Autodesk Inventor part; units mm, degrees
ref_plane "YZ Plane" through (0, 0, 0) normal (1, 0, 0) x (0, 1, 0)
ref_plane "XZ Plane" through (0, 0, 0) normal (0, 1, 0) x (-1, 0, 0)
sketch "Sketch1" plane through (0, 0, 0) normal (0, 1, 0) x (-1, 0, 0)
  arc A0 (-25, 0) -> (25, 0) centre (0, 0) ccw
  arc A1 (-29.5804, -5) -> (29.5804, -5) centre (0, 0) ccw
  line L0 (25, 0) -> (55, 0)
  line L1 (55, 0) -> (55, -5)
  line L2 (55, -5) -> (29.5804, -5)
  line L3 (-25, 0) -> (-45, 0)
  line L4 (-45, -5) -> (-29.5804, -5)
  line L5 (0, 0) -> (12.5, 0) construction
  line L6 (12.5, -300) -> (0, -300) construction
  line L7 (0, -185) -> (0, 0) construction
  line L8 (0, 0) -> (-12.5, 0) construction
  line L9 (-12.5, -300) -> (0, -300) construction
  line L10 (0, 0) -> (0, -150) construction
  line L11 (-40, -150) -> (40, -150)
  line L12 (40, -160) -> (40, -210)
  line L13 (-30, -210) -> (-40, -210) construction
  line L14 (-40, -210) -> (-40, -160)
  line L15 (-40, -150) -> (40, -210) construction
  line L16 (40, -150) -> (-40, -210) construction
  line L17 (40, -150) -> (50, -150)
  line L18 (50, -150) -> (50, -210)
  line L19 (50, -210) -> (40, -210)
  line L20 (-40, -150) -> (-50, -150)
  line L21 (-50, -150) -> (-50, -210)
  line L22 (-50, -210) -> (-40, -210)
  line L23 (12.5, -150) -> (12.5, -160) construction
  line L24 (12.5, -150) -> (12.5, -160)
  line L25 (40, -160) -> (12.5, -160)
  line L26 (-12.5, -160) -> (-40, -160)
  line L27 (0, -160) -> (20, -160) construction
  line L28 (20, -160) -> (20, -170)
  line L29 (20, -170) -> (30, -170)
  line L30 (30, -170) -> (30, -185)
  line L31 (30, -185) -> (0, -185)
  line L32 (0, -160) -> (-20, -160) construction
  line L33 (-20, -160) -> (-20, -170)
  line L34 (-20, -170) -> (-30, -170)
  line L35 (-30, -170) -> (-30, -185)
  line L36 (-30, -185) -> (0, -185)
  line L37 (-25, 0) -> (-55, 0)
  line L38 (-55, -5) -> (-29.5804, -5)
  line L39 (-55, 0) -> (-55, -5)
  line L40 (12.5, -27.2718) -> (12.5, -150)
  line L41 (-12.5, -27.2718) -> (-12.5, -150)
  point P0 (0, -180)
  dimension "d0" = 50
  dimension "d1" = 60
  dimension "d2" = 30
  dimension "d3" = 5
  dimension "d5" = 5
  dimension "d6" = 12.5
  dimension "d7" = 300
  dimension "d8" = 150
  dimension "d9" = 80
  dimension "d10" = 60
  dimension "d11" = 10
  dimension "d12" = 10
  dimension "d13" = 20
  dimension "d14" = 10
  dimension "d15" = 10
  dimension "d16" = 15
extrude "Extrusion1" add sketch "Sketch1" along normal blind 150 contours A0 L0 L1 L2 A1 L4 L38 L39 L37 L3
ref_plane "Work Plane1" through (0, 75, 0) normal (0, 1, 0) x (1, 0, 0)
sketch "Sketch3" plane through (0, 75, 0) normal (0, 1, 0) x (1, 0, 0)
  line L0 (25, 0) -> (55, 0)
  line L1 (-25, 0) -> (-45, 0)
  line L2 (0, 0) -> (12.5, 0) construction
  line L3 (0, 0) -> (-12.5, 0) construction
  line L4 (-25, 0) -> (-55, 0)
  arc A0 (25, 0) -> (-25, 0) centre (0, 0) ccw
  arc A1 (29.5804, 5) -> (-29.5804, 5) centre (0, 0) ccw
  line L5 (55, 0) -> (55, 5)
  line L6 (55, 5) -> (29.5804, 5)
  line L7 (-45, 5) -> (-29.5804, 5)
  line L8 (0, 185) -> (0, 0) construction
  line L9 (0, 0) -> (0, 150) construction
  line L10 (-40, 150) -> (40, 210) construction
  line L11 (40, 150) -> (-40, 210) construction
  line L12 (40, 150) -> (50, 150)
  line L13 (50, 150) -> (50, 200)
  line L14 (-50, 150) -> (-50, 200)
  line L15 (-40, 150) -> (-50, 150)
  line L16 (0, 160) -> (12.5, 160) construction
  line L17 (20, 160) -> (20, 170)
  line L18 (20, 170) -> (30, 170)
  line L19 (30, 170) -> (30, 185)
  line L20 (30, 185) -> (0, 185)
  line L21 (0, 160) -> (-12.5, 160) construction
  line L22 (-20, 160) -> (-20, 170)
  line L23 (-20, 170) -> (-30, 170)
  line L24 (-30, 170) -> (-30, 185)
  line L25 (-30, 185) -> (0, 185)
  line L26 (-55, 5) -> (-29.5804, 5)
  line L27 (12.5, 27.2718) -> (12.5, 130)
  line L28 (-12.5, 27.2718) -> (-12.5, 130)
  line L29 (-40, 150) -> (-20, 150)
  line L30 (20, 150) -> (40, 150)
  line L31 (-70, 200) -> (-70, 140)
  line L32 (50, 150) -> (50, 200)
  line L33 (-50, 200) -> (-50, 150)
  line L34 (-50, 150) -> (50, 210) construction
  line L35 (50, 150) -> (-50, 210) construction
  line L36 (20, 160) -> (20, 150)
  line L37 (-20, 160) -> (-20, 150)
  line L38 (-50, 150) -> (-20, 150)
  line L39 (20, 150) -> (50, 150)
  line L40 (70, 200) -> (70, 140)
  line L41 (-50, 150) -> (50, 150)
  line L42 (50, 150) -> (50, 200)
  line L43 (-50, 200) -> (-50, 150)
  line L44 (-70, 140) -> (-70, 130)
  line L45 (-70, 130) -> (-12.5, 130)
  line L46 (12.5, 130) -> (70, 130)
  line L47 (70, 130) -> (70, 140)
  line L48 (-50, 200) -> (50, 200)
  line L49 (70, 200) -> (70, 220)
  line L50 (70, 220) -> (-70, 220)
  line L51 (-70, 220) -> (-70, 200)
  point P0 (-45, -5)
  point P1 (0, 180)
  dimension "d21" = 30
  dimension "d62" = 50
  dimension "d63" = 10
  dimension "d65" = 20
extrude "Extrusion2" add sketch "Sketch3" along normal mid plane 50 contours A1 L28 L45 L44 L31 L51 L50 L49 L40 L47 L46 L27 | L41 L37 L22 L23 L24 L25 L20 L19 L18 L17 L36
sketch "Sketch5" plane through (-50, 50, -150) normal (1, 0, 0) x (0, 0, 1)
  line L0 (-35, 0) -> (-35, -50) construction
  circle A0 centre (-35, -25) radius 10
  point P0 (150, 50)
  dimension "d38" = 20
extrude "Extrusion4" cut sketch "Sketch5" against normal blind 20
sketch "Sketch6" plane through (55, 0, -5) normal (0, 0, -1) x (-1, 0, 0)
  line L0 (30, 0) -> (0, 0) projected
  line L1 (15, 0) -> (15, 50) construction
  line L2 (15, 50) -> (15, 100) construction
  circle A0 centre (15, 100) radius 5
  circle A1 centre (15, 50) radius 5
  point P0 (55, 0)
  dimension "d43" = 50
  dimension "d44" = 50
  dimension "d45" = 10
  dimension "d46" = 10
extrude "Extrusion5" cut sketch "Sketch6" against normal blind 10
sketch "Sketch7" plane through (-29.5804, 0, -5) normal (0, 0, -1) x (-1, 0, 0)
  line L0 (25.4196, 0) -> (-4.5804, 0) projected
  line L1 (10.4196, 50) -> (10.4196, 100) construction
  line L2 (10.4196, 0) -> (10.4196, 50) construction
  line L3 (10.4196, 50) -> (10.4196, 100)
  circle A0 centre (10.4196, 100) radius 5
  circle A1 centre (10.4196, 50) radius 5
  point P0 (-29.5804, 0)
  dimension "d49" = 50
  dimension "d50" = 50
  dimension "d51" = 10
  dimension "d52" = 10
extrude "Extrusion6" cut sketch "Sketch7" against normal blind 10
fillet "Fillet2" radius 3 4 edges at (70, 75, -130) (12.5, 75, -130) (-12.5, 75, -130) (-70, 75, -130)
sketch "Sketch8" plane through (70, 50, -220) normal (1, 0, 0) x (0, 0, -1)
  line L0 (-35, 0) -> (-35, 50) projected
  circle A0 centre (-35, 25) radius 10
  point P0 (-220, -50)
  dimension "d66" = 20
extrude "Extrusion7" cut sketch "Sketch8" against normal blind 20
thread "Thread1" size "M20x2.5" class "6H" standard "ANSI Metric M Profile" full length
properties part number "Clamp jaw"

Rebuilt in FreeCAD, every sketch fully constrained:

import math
import FreeCAD as App
import Part
import Sketcher
from FreeCAD import Vector
Q = App.Units.Quantity


def edges_at(feature, points):
    """Names of the edges that pass closest to the given points."""
    edges = feature.Shape.Edges
    near = lambda p: min(range(len(edges)), key=lambda i: edges[i].distToShape(Part.Vertex(*p))[0])
    return sorted({f"Edge{near(p) + 1}" for p in points})

doc = App.newDocument("Part")
body = doc.addObject("PartDesign::Body", "Body")

sketch1 = body.newObject("Sketcher::SketchObject", "Sketch")
sketch1.AttachmentSupport = (doc.getObject("XZ_Plane"), [""])
sketch1.MapMode = "FlatFace"
sketch1.addGeometry([
    Part.ArcOfCircle(Part.Circle(Vector(0, 0, 0), Vector(0, 0, 1), 25), math.radians(180), math.radians(360)),
    Part.LineSegment(Vector(25, 0, 0), Vector(55, 0, 0)),
    Part.LineSegment(Vector(55, 0, 0), Vector(55, -5, 0)),
    Part.LineSegment(Vector(55, -5, 0), Vector(30, -5, 0)),
    Part.ArcOfCircle(Part.Circle(Vector(0, 0, 0), Vector(0, 0, 1), 30), math.radians(-170), math.radians(-10)),
    Part.LineSegment(Vector(-30, -5, 0), Vector(-55, -5, 0)),
    Part.LineSegment(Vector(-55, -5, 0), Vector(-55, 0, 0)),
    Part.LineSegment(Vector(-55, 0, 0), Vector(-25, 0, 0)),
], False)
sketch1.addConstraint([
    Sketcher.Constraint("Coincident", 0, 2, 1, 1),
    Sketcher.Constraint("Coincident", 1, 2, 2, 1),
    Sketcher.Constraint("Coincident", 2, 2, 3, 1),
    Sketcher.Constraint("Coincident", 3, 2, 4, 2),
    Sketcher.Constraint("Coincident", 4, 1, 5, 1),
    Sketcher.Constraint("Coincident", 5, 2, 6, 1),
    Sketcher.Constraint("Coincident", 6, 2, 7, 1),
    Sketcher.Constraint("Coincident", 7, 2, 0, 1),
    Sketcher.Constraint("Horizontal", 1),
    Sketcher.Constraint("Vertical", 2),
    Sketcher.Constraint("Horizontal", 3),
    Sketcher.Constraint("Horizontal", 5),
    Sketcher.Constraint("Vertical", 6),
    Sketcher.Constraint("Horizontal", 7),
    Sketcher.Constraint("Coincident", 0, 3, -1, 1),
    Sketcher.Constraint("Coincident", 4, 3, -1, 1),
    Sketcher.Constraint("Symmetric", 1, 2, 6, 2, -1, 1),
    Sketcher.Constraint("PointOnObject", 0, 2, -1),
    Sketcher.Constraint("Horizontal", 3, 2, 4, 1),
    Sketcher.Constraint("Radius", 0, Q("25 mm")),
    Sketcher.Constraint("Radius", 4, Q("30 mm")),
    Sketcher.Constraint("DistanceX", 1, 1, 1, 2, Q("30 mm")),
    Sketcher.Constraint("DistanceY", 2, 2, 2, 1, Q("5 mm")),
])
pad1 = body.newObject("PartDesign::Pad", "Pad")
pad1.Profile = sketch1
pad1.Length = 150
pad1.Reversed = True

sketch2 = body.newObject("Sketcher::SketchObject", "Sketch001")
sketch2.AttachmentSupport = (doc.getObject("XZ_Plane"), [""])
sketch2.MapMode = "FlatFace"
sketch2.AttachmentOffset = App.Placement(Vector(0, 0, -75), App.Rotation())
sketch2.addGeometry([
    Part.ArcOfCircle(Part.Circle(Vector(0, 0, 0), Vector(0, 0, 1), 30), math.radians(-115), math.radians(-65)),
    Part.LineSegment(Vector(12, -27, 0), Vector(12, -130, 0)),
    Part.LineSegment(Vector(12, -130, 0), Vector(70, -130, 0)),
    Part.LineSegment(Vector(70, -130, 0), Vector(70, -220, 0)),
    Part.LineSegment(Vector(70, -220, 0), Vector(-70, -220, 0)),
    Part.LineSegment(Vector(-70, -220, 0), Vector(-70, -130, 0)),
    Part.LineSegment(Vector(-70, -130, 0), Vector(-12, -130, 0)),
    Part.LineSegment(Vector(-12, -130, 0), Vector(-12, -27, 0)),
    Part.LineSegment(Vector(50, -150, 0), Vector(20, -150, 0)),
    Part.LineSegment(Vector(20, -150, 0), Vector(20, -170, 0)),
    Part.LineSegment(Vector(20, -170, 0), Vector(30, -170, 0)),
    Part.LineSegment(Vector(30, -170, 0), Vector(30, -185, 0)),
    Part.LineSegment(Vector(30, -185, 0), Vector(-30, -185, 0)),
    Part.LineSegment(Vector(-30, -185, 0), Vector(-30, -170, 0)),
    Part.LineSegment(Vector(-30, -170, 0), Vector(-20, -170, 0)),
    Part.LineSegment(Vector(-20, -170, 0), Vector(-20, -150, 0)),
    Part.LineSegment(Vector(-20, -150, 0), Vector(-50, -150, 0)),
    Part.LineSegment(Vector(-50, -150, 0), Vector(-50, -200, 0)),
    Part.LineSegment(Vector(-50, -200, 0), Vector(50, -200, 0)),
    Part.LineSegment(Vector(50, -200, 0), Vector(50, -150, 0)),
], False)
sketch2.addConstraint([
    Sketcher.Constraint("Coincident", 0, 2, 1, 1),
    Sketcher.Constraint("Coincident", 1, 2, 2, 1),
    Sketcher.Constraint("Coincident", 2, 2, 3, 1),
    Sketcher.Constraint("Coincident", 3, 2, 4, 1),
    Sketcher.Constraint("Coincident", 4, 2, 5, 1),
    Sketcher.Constraint("Coincident", 5, 2, 6, 1),
    Sketcher.Constraint("Coincident", 6, 2, 7, 1),
    Sketcher.Constraint("Coincident", 7, 2, 0, 1),
    Sketcher.Constraint("Coincident", 8, 2, 9, 1),
    Sketcher.Constraint("Coincident", 9, 2, 10, 1),
    Sketcher.Constraint("Coincident", 10, 2, 11, 1),
    Sketcher.Constraint("Coincident", 11, 2, 12, 1),
    Sketcher.Constraint("Coincident", 12, 2, 13, 1),
    Sketcher.Constraint("Coincident", 13, 2, 14, 1),
    Sketcher.Constraint("Coincident", 14, 2, 15, 1),
    Sketcher.Constraint("Coincident", 15, 2, 16, 1),
    Sketcher.Constraint("Coincident", 16, 2, 17, 1),
    Sketcher.Constraint("Coincident", 17, 2, 18, 1),
    Sketcher.Constraint("Coincident", 18, 2, 19, 1),
    Sketcher.Constraint("Coincident", 19, 2, 8, 1),
    Sketcher.Constraint("Vertical", 1),
    Sketcher.Constraint("Horizontal", 2),
    Sketcher.Constraint("Vertical", 3),
    Sketcher.Constraint("Horizontal", 4),
    Sketcher.Constraint("Vertical", 5),
    Sketcher.Constraint("Horizontal", 6),
    Sketcher.Constraint("Vertical", 7),
    Sketcher.Constraint("Horizontal", 8),
    Sketcher.Constraint("Vertical", 9),
    Sketcher.Constraint("Horizontal", 10),
    Sketcher.Constraint("Vertical", 11),
    Sketcher.Constraint("Horizontal", 12),
    Sketcher.Constraint("Vertical", 13),
    Sketcher.Constraint("Horizontal", 14),
    Sketcher.Constraint("Vertical", 15),
    Sketcher.Constraint("Horizontal", 16),
    Sketcher.Constraint("Vertical", 17),
    Sketcher.Constraint("Horizontal", 18),
    Sketcher.Constraint("Vertical", 19),
    Sketcher.Constraint("Coincident", 0, 3, -1, 1),
    Sketcher.Constraint("Symmetric", 2, 2, 5, 2, -2),
    Sketcher.Constraint("Symmetric", 10, 2, 13, 2, -2),
    Sketcher.Constraint("Symmetric", 8, 2, 15, 2, -2),
    Sketcher.Constraint("Horizontal", 0, 2, 7, 2),
    Sketcher.Constraint("Equal", 8, 16),
    Sketcher.Constraint("Radius", 0, Q("30 mm")),
    Sketcher.Constraint("DistanceX", 8, 2, 8, 1, Q("30 mm")),
    Sketcher.Constraint("DistanceX", 10, 1, 10, 2, Q("10 mm")),
    Sketcher.Constraint("DistanceY", 9, 2, 9, 1, Q("20 mm")),
    Sketcher.Constraint("DistanceY", 17, 2, 17, 1, Q("50 mm")),
    Sketcher.Constraint("DistanceX", -1, 1, 8, 2, Q("20 mm")),
    Sketcher.Constraint("DistanceY", 8, 2, 1, 2, Q("20 mm")),
    Sketcher.Constraint("DistanceX", 8, 2, 2, 2, Q("50 mm")),
    Sketcher.Constraint("DistanceY", 3, 2, 9, 2, Q("50 mm")),
    Sketcher.Constraint("DistanceY", 11, 2, 11, 1, Q("15 mm")),
    Sketcher.Constraint("DistanceX", 2, 1, 2, 2, Q("57.5 mm")),
    Sketcher.Constraint("DistanceY", 1, 2, -1, 1, Q("130 mm")),
])
pad2 = body.newObject("PartDesign::Pad", "Pad001")
pad2.Profile = sketch2
pad2.Length = 50
pad2.Midplane = True

sketch3 = body.newObject("Sketcher::SketchObject", "Sketch002")
sketch3.AttachmentSupport = (doc.getObject("YZ_Plane"), [""])
sketch3.MapMode = "FlatFace"
sketch3.AttachmentOffset = App.Placement(Vector(0, 0, -50), App.Rotation())
sketch3.addGeometry(Part.Circle(Vector(75, -185, 0), Vector(0, 0, 1), 10), False)
sketch3.addConstraint([
    Sketcher.Constraint("Diameter", 0, Q("20 mm")),
    Sketcher.Constraint("DistanceX", -1, 1, 0, 3, Q("75 mm")),
    Sketcher.Constraint("DistanceY", 0, 3, -1, 1, Q("185 mm")),
])
pocket1 = body.newObject("PartDesign::Pocket", "Pocket")
pocket1.Profile = sketch3
pocket1.Length = 20

sketch4 = body.newObject("Sketcher::SketchObject", "Sketch003")
sketch4.AttachmentSupport = (doc.getObject("XY_Plane"), [""])
sketch4.MapMode = "FlatFace"
sketch4.AttachmentOffset = App.Placement(Vector(0, 0, -5), App.Rotation())
sketch4.addGeometry([
    Part.Circle(Vector(40, 100, 0), Vector(0, 0, 1), 5),
    Part.Circle(Vector(40, 50, 0), Vector(0, 0, 1), 5),
], False)
sketch4.addConstraint([
    Sketcher.Constraint("Equal", 0, 1),
    Sketcher.Constraint("Vertical", 0, 3, 1, 3),
    Sketcher.Constraint("Diameter", 0, Q("10 mm")),
    Sketcher.Constraint("DistanceY", -1, 1, 1, 3, Q("50 mm")),
    Sketcher.Constraint("DistanceY", 1, 3, 0, 3, Q("50 mm")),
    Sketcher.Constraint("DistanceX", -1, 1, 0, 3, Q("40 mm")),
])
pocket2 = body.newObject("PartDesign::Pocket", "Pocket001")
pocket2.Profile = sketch4
pocket2.Length = 10
pocket2.Reversed = True

sketch5 = body.newObject("Sketcher::SketchObject", "Sketch004")
sketch5.AttachmentSupport = (doc.getObject("XY_Plane"), [""])
sketch5.MapMode = "FlatFace"
sketch5.AttachmentOffset = App.Placement(Vector(0, 0, -5), App.Rotation())
sketch5.addGeometry([
    Part.Circle(Vector(-40, 100, 0), Vector(0, 0, 1), 5),
    Part.Circle(Vector(-40, 50, 0), Vector(0, 0, 1), 5),
], False)
sketch5.addConstraint([
    Sketcher.Constraint("Equal", 0, 1),
    Sketcher.Constraint("Vertical", 0, 3, 1, 3),
    Sketcher.Constraint("Diameter", 0, Q("10 mm")),
    Sketcher.Constraint("DistanceY", -1, 1, 1, 3, Q("50 mm")),
    Sketcher.Constraint("DistanceY", 1, 3, 0, 3, Q("50 mm")),
    Sketcher.Constraint("DistanceX", 0, 3, -1, 1, Q("40 mm")),
])
pocket3 = body.newObject("PartDesign::Pocket", "Pocket002")
pocket3.Profile = sketch5
pocket3.Length = 10
pocket3.Reversed = True
doc.recompute()

fillet = body.newObject("PartDesign::Fillet", "Fillet")
fillet.Base = (pocket3, edges_at(pocket3, [
    (70, 75, -130),
    (12.5, 75, -130),
    (-12.5, 75, -130),
    (-70, 75, -130),
]))
fillet.Radius = 3

sketch6 = body.newObject("Sketcher::SketchObject", "Sketch005")
sketch6.AttachmentSupport = (doc.getObject("YZ_Plane"), [""])
sketch6.MapMode = "FlatFace"
sketch6.AttachmentOffset = App.Placement(Vector(0, 0, 70), App.Rotation())
sketch6.addGeometry(Part.Circle(Vector(75, -185, 0), Vector(0, 0, 1), 10), False)
sketch6.addConstraint([
    Sketcher.Constraint("Diameter", 0, Q("20 mm")),
    Sketcher.Constraint("DistanceX", -1, 1, 0, 3, Q("75 mm")),
    Sketcher.Constraint("DistanceY", 0, 3, -1, 1, Q("185 mm")),
])
pocket4 = body.newObject("PartDesign::Pocket", "Pocket003")
pocket4.Profile = sketch6
pocket4.Length = 20

doc.recompute()
